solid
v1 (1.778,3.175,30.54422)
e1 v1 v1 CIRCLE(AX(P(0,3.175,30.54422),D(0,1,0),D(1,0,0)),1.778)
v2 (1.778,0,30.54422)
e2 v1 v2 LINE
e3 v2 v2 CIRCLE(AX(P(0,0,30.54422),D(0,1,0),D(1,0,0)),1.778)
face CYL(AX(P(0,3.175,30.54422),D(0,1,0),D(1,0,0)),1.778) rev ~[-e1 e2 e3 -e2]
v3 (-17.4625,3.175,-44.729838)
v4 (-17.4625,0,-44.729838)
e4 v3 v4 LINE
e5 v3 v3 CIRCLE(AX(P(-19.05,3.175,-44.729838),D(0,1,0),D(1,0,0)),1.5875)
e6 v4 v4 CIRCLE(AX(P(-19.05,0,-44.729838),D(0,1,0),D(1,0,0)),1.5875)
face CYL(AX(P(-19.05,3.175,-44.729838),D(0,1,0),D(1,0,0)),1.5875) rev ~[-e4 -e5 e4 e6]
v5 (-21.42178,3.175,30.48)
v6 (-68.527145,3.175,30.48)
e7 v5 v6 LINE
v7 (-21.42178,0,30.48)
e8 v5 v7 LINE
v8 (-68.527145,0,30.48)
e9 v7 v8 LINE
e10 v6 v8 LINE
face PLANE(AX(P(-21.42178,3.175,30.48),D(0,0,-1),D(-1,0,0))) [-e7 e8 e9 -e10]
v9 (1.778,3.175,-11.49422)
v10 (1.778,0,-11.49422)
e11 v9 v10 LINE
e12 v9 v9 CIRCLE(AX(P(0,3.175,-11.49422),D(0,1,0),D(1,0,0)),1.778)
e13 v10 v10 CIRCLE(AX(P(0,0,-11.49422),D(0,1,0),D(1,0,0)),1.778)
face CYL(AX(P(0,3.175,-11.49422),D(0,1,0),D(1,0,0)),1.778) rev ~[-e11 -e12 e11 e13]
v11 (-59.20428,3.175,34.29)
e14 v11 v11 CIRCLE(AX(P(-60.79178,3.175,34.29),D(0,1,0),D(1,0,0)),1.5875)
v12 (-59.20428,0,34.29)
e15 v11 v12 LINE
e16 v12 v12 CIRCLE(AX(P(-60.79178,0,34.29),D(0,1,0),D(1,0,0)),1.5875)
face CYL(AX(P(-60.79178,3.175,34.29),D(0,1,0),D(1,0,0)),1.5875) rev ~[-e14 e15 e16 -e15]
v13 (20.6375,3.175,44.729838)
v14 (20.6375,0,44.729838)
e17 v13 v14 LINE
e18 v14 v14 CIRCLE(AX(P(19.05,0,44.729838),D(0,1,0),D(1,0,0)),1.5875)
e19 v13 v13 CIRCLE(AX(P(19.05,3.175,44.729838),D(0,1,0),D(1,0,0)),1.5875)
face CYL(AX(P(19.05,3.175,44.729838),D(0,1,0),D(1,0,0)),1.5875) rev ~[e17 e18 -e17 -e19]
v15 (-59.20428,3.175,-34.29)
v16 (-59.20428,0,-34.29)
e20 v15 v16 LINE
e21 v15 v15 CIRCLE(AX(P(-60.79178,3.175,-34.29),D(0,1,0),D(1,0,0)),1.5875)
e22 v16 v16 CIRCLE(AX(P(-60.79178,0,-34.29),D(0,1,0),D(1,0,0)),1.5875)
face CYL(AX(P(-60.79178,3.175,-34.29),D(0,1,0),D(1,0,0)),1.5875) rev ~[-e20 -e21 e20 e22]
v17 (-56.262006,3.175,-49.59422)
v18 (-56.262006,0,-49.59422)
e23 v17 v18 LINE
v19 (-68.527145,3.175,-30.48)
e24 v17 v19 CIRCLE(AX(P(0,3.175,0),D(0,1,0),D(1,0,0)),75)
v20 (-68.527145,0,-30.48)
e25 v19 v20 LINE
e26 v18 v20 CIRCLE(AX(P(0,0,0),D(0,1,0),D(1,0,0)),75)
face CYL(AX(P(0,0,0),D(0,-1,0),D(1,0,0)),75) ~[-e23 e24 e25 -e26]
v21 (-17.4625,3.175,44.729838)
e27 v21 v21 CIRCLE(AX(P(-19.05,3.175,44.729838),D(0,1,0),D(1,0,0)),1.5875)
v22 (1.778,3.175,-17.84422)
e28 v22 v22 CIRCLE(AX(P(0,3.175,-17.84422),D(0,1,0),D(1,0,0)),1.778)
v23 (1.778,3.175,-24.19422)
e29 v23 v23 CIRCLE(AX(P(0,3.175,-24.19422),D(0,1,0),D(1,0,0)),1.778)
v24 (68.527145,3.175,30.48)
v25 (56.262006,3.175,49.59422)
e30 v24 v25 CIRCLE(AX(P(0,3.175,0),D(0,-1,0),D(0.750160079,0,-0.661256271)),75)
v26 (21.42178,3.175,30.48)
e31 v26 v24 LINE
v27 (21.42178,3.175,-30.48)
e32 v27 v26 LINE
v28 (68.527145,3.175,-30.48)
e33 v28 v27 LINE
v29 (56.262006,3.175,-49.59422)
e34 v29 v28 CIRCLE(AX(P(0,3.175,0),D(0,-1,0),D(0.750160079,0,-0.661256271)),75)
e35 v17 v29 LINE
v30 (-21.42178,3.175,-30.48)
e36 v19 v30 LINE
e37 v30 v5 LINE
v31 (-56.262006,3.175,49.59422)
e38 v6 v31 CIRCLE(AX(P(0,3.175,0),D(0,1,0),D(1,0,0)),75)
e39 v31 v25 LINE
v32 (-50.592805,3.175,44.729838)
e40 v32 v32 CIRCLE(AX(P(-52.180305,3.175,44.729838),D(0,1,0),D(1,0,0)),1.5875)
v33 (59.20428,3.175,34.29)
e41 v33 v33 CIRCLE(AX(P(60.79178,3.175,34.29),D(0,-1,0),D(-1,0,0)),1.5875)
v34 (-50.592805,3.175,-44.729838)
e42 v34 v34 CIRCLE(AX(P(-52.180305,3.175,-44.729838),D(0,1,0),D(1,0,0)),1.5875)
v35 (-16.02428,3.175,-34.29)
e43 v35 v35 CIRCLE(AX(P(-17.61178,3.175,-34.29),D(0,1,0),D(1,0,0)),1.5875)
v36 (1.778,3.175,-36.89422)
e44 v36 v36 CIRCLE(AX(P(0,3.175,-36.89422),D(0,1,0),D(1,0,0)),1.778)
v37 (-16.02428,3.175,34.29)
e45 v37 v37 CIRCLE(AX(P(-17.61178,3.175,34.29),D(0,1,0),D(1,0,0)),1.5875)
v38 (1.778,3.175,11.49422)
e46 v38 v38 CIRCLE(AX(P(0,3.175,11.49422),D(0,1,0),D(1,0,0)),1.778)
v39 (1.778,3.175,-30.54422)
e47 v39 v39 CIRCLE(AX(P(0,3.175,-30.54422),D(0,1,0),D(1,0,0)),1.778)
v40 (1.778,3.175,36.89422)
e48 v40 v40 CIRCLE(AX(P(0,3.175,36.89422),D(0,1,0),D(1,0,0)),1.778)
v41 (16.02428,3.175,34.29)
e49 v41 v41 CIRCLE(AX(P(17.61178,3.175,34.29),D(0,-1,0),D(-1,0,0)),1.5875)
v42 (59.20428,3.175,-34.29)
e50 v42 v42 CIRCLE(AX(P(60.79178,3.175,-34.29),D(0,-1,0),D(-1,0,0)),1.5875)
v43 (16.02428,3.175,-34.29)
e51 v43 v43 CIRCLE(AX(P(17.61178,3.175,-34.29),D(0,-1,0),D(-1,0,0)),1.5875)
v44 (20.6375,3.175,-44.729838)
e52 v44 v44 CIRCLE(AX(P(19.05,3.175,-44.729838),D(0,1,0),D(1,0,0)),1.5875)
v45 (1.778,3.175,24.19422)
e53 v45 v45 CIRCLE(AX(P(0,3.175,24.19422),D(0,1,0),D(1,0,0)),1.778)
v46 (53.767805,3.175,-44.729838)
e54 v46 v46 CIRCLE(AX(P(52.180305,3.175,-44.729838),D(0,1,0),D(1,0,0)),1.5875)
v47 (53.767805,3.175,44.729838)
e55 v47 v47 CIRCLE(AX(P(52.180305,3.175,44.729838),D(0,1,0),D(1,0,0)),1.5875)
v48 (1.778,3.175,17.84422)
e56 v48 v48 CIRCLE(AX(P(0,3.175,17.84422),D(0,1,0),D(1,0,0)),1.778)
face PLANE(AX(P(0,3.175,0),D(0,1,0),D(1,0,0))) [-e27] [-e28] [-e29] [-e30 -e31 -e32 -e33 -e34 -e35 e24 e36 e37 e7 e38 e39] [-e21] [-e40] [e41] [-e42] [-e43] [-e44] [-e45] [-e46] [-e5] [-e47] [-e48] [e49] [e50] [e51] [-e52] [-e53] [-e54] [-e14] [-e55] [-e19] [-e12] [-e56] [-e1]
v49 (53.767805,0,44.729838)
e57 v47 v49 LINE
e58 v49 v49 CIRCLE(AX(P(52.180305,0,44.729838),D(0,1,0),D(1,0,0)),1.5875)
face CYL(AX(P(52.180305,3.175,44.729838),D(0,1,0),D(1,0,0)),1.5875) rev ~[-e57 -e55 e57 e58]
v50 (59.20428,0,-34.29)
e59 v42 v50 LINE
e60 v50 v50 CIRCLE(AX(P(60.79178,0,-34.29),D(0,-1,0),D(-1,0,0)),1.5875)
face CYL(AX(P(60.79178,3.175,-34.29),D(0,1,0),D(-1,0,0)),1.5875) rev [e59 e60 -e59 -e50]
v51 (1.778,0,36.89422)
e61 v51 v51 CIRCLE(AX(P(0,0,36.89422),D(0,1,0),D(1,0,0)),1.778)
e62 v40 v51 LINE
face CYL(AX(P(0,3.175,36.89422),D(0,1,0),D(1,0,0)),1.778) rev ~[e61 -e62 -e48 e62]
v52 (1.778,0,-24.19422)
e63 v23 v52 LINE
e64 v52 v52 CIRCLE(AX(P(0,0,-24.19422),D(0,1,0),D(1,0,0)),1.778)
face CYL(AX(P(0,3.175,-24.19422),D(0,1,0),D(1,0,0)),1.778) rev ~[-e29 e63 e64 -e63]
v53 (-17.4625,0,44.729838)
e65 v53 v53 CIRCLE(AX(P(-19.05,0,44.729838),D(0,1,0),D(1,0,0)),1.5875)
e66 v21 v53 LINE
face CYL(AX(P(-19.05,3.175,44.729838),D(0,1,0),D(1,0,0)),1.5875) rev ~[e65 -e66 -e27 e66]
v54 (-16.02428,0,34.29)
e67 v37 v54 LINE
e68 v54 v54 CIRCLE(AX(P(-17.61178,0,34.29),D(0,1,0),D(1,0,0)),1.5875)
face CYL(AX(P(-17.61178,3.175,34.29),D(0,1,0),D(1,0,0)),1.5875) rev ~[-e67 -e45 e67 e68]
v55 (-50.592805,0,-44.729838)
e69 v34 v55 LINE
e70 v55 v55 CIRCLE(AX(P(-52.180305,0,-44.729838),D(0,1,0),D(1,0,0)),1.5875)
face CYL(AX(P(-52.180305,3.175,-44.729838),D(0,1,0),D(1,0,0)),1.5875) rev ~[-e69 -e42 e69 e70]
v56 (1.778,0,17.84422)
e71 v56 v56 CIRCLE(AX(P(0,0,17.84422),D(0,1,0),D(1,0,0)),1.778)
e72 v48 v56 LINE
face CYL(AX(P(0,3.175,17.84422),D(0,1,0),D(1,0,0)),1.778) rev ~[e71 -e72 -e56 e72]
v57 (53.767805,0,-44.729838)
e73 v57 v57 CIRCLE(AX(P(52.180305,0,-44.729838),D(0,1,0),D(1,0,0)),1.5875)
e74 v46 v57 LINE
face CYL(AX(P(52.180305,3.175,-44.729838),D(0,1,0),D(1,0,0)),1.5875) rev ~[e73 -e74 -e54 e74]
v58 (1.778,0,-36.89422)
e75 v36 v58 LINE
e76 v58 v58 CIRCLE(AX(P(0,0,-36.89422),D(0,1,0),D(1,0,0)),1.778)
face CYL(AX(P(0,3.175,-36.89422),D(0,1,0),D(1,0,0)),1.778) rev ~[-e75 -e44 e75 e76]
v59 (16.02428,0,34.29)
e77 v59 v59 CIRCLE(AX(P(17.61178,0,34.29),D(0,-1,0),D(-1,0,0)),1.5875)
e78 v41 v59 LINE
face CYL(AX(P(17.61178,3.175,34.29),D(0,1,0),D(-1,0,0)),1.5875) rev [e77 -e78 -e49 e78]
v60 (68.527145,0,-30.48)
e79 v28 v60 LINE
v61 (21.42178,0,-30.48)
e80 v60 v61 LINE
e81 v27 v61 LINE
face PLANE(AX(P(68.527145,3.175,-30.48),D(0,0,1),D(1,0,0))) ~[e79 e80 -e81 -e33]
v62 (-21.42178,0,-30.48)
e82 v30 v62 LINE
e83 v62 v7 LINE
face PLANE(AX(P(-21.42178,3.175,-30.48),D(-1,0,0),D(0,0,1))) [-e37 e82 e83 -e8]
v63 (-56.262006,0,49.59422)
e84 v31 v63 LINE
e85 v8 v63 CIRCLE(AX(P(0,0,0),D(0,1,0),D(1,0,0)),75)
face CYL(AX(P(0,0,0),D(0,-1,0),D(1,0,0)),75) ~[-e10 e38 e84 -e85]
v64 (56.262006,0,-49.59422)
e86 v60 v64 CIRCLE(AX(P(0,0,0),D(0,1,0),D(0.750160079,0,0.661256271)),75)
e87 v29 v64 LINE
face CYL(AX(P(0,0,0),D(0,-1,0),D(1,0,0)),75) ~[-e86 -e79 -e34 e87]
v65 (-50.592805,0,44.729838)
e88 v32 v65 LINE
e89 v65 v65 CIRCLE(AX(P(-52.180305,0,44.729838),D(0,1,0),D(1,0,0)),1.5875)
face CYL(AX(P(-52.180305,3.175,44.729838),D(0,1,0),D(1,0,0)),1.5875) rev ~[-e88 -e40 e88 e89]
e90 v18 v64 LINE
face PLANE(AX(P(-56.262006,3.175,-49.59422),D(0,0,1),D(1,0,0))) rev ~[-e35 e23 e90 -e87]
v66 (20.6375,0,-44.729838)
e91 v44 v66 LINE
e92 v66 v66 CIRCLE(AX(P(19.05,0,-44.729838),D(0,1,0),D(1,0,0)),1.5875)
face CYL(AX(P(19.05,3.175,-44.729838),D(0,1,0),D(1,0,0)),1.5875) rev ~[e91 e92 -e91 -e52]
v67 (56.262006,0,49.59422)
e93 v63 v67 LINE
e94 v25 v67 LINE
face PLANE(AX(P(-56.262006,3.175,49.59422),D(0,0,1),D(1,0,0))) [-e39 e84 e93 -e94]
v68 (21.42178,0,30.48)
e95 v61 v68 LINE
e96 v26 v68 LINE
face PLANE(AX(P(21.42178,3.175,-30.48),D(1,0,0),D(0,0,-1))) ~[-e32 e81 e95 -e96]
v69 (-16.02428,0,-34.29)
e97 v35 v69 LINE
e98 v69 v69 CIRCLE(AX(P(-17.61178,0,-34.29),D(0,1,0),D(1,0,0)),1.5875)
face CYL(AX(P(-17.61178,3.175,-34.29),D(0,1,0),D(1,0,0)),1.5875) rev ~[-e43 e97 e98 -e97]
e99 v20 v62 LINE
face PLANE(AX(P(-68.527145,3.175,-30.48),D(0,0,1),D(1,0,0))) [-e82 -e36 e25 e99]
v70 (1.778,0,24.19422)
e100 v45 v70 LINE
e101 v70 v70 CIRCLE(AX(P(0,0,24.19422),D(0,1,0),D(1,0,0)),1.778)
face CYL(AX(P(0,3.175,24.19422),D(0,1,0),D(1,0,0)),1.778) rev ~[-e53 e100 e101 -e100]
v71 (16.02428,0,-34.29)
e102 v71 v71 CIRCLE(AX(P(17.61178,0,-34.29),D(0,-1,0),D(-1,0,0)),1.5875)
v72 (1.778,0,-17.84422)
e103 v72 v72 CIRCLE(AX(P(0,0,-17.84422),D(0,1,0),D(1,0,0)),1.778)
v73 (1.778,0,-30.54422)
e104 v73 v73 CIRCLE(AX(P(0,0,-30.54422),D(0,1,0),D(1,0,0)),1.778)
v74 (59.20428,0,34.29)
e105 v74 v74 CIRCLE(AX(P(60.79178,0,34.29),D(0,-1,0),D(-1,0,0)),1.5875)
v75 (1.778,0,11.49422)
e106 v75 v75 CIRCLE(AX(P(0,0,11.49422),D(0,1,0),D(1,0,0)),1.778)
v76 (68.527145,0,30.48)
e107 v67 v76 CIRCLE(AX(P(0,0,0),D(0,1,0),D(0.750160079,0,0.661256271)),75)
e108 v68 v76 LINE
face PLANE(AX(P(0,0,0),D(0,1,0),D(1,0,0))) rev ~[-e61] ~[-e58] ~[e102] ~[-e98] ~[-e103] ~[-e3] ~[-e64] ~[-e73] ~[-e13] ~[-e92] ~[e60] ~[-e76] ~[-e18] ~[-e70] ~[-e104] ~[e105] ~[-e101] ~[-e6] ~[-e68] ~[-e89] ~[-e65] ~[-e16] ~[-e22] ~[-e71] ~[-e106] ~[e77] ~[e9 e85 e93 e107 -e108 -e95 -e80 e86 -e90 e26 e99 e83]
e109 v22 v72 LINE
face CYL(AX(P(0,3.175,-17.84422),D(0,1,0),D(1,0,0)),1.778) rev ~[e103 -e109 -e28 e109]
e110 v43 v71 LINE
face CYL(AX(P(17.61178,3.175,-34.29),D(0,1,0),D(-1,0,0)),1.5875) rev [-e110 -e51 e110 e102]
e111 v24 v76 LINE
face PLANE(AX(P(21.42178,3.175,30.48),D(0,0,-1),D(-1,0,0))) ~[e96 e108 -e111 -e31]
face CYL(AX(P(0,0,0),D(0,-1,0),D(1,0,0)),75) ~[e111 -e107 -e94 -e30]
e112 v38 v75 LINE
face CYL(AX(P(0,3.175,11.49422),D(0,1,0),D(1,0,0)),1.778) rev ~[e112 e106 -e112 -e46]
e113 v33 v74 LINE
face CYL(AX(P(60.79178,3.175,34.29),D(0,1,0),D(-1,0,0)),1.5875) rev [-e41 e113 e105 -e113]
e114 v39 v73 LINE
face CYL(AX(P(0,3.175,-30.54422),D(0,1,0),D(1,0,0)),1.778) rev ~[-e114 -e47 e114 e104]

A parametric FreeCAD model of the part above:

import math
import FreeCAD as App
import Part
import Sketcher
Q = App.Units.Quantity

doc = App.newDocument("Part")
body = doc.addObject("PartDesign::Body", "Body")

sketch1 = doc.addObject("Sketcher::SketchObject", "Sketch")
body.addObject(sketch1)
sketch1.AttachmentSupport = (doc.XZ_Plane, [""])
sketch1.MapMode = "FlatFace"
sketch1.addGeometry(Part.Circle(App.Vector(0, 0, 0), App.Vector(0, 0, 1), 75), False)
sketch1.addConstraint([
    Sketcher.Constraint("Coincident", 0, 3, -1, 1),
    Sketcher.Constraint("Diameter", 0, Q("150 mm")),
])
pad1 = doc.addObject("PartDesign::Pad", "Pad")
body.addObject(pad1)
pad1.Profile = sketch1
pad1.Length = Q("0.125 in")
pad1.Reversed = True

sketch2 = doc.addObject("Sketcher::SketchObject", "Sketch001")
body.addObject(sketch2)
sketch2.AttachmentSupport = (doc.XZ_Plane, [""])
sketch2.MapMode = "FlatFace"
sketch2.AttachmentOffset = App.Placement(App.Vector(0, 0, -0.125 * 25.4), App.Rotation())
sketch2.addGeometry([
    Part.LineSegment(App.Vector(56, 50, 0), App.Vector(-56, 50, 0)),
    Part.ArcOfCircle(Part.Circle(App.Vector(0, 0, 0), App.Vector(0, 0, 1), 75), math.radians(41), math.radians(139)),
    Part.LineSegment(App.Vector(-56, -50, 0), App.Vector(56, -50, 0)),
    Part.ArcOfCircle(Part.Circle(App.Vector(0, 0, 0), App.Vector(0, 0, 1), 75), math.radians(-139), math.radians(-41)),
], False)
sketch2.addConstraint([
    Sketcher.Constraint("Coincident", 0, 1, 1, 1),
    Sketcher.Constraint("Coincident", 1, 2, 0, 2),
    Sketcher.Constraint("Coincident", 2, 1, 3, 1),
    Sketcher.Constraint("Coincident", 3, 2, 2, 2),
    Sketcher.Constraint("Horizontal", 0),
    Sketcher.Constraint("Horizontal", 2),
    Sketcher.Constraint("Coincident", 1, 3, -1, 1),
    Sketcher.Constraint("Coincident", 3, 3, -1, 1),
    Sketcher.Constraint("Equal", 1, 3),
    Sketcher.Constraint("Vertical", 1, 2, 2, 1),
    Sketcher.Constraint("Radius", 1, Q("75 mm")),
    Sketcher.Constraint("DistanceX", 0, 2, 0, 1, Q("112.524012 mm")),
])
pocket1 = doc.addObject("PartDesign::Pocket", "Pocket")
body.addObject(pocket1)
pocket1.Profile = sketch2
pocket1.Length = Q("0.125 in")
pocket1.Reversed = True

sketch3 = doc.addObject("Sketcher::SketchObject", "Sketch002")
body.addObject(sketch3)
sketch3.AttachmentSupport = (doc.XZ_Plane, [""])
sketch3.MapMode = "FlatFace"
sketch3.AttachmentOffset = App.Placement(App.Vector(0, 0, -0.125 * 25.4), App.Rotation())
sketch3.addGeometry([
    Part.Circle(App.Vector(0, -36.9, 0), App.Vector(0, 0, 1), 1.8),
    Part.Circle(App.Vector(0, -11.5, 0), App.Vector(0, 0, 1), 1.8),
    Part.Circle(App.Vector(0, -17.8, 0), App.Vector(0, 0, 1), 1.8),
    Part.Circle(App.Vector(0, -24.2, 0), App.Vector(0, 0, 1), 1.8),
    Part.Circle(App.Vector(0, -30.5, 0), App.Vector(0, 0, 1), 1.8),
    Part.Circle(App.Vector(0, 11.5, 0), App.Vector(0, 0, 1), 1.8),
    Part.Circle(App.Vector(0, 17.8, 0), App.Vector(0, 0, 1), 1.8),
    Part.Circle(App.Vector(0, 24.2, 0), App.Vector(0, 0, 1), 1.8),
    Part.Circle(App.Vector(0, 30.5, 0), App.Vector(0, 0, 1), 1.8),
    Part.Circle(App.Vector(0, 36.9, 0), App.Vector(0, 0, 1), 1.8),
    Part.Circle(App.Vector(-52.2, 44.7, 0), App.Vector(0, 0, 1), 1.6),
    Part.Circle(App.Vector(52.2, 44.7, 0), App.Vector(0, 0, 1), 1.6),
    Part.Circle(App.Vector(52.2, -44.7, 0), App.Vector(0, 0, 1), 1.6),
    Part.Circle(App.Vector(-52.2, -44.7, 0), App.Vector(0, 0, 1), 1.6),
    Part.Circle(App.Vector(-19.1, -44.7, 0), App.Vector(0, 0, 1), 1.6),
    Part.Circle(App.Vector(-19.1, 44.7, 0), App.Vector(0, 0, 1), 1.6),
    Part.Circle(App.Vector(19.1, 44.7, 0), App.Vector(0, 0, 1), 1.6),
    Part.Circle(App.Vector(19.1, -44.7, 0), App.Vector(0, 0, 1), 1.6),
], False)
sketch3.addConstraint([
    Sketcher.Constraint("Equal", 0, 1),
    Sketcher.Constraint("Equal", 1, 2),
    Sketcher.Constraint("Equal", 2, 3),
    Sketcher.Constraint("Equal", 3, 4),
    Sketcher.Constraint("Equal", 4, 5),
    Sketcher.Constraint("Equal", 5, 6),
    Sketcher.Constraint("Equal", 6, 7),
    Sketcher.Constraint("Equal", 7, 8),
    Sketcher.Constraint("Equal", 8, 9),
    Sketcher.Constraint("Equal", 10, 11),
    Sketcher.Constraint("Equal", 11, 12),
    Sketcher.Constraint("Equal", 12, 13),
    Sketcher.Constraint("Equal", 13, 14),
    Sketcher.Constraint("Equal", 14, 15),
    Sketcher.Constraint("Equal", 15, 16),
    Sketcher.Constraint("Equal", 16, 17),
    Sketcher.Constraint("Symmetric", 1, 3, 5, 3, -1, 1),
    Sketcher.Constraint("Symmetric", 2, 3, 6, 3, -1, 1),
    Sketcher.Constraint("Symmetric", 3, 3, 7, 3, -1, 1),
    Sketcher.Constraint("Symmetric", 4, 3, 8, 3, -1, 1),
    Sketcher.Constraint("Symmetric", 0, 3, 9, 3, -1, 1),
    Sketcher.Constraint("Symmetric", 10, 3, 12, 3, -1, 1),
    Sketcher.Constraint("Symmetric", 11, 3, 13, 3, -1, 1),
    Sketcher.Constraint("Symmetric", 14, 3, 16, 3, -1, 1),
    Sketcher.Constraint("Symmetric", 15, 3, 17, 3, -1, 1),
    Sketcher.Constraint("Symmetric", 10, 3, 11, 3, -2),
    Sketcher.Constraint("Symmetric", 15, 3, 16, 3, -2),
    Sketcher.Constraint("PointOnObject", 0, 3, -2),
    Sketcher.Constraint("PointOnObject", 1, 3, -2),
    Sketcher.Constraint("PointOnObject", 2, 3, -2),
    Sketcher.Constraint("PointOnObject", 3, 3, -2),
    Sketcher.Constraint("PointOnObject", 4, 3, -2),
    Sketcher.Constraint("Horizontal", 13, 3, 14, 3),
    Sketcher.Constraint("Diameter", 0, Q("0.14 in")),
    Sketcher.Constraint("Diameter", 10, Q("0.125 in")),
    Sketcher.Constraint("DistanceY", 0, 3, 1, 3, Q("1 in")),
    Sketcher.Constraint("DistanceY", 0, 3, 3, 3, Q("0.5 in")),
    Sketcher.Constraint("DistanceY", 4, 3, 2, 3, Q("0.5 in")),
    Sketcher.Constraint("DistanceX", 14, 3, -1, 1, Q("0.75 in")),
    Sketcher.Constraint("DistanceY", 2, 3, 1, 3, Q("0.25 in")),
    Sketcher.Constraint("DistanceY", 0, 3, -1, 1, Q("36.89422 mm")),
    Sketcher.Constraint("DistanceY", -1, 1, 10, 3, Q("44.729838 mm")),
    Sketcher.Constraint("DistanceX", 10, 3, -1, 1, Q("52.180305 mm")),
])
pocket2 = doc.addObject("PartDesign::Pocket", "Pocket001")
body.addObject(pocket2)
pocket2.Profile = sketch3
pocket2.Length = Q("0.125 in")
pocket2.Reversed = True

sketch4 = doc.addObject("Sketcher::SketchObject", "Sketch003")
body.addObject(sketch4)
sketch4.AttachmentSupport = (doc.XZ_Plane, [""])
sketch4.MapMode = "FlatFace"
sketch4.AttachmentOffset = App.Placement(App.Vector(0, 0, -0.125 * 25.4), App.Rotation())
sketch4.addGeometry([
    Part.Circle(App.Vector(-60.8, -34.3, 0), App.Vector(0, 0, 1), 1.6),
    Part.Circle(App.Vector(-17.6, -34.3, 0), App.Vector(0, 0, 1), 1.6),
    Part.Circle(App.Vector(-17.6, 34.3, 0), App.Vector(0, 0, 1), 1.6),
    Part.Circle(App.Vector(-60.8, 34.3, 0), App.Vector(0, 0, 1), 1.6),
], False)
sketch4.addConstraint([
    Sketcher.Constraint("Equal", 0, 1),
    Sketcher.Constraint("Equal", 1, 2),
    Sketcher.Constraint("Equal", 2, 3),
    Sketcher.Constraint("Symmetric", 1, 3, 2, 3, -1),
    Sketcher.Constraint("Symmetric", 0, 3, 3, 3, -1),
    Sketcher.Constraint("Horizontal", 0, 3, 1, 3),
    Sketcher.Constraint("Diameter", 0, Q("0.125 in")),
    Sketcher.Constraint("DistanceX", 0, 3, 1, 3, Q("1.7 in")),
    Sketcher.Constraint("DistanceY", 1, 3, 2, 3, Q("2.7 in")),
    Sketcher.Constraint("DistanceX", 0, 3, -1, 1, Q("60.79178 mm")),
])
pocket3 = doc.addObject("PartDesign::Pocket", "Pocket002")
body.addObject(pocket3)
pocket3.Profile = sketch4
pocket3.Length = Q("0.125 in")
pocket3.Reversed = True

sketch5 = doc.addObject("Sketcher::SketchObject", "Sketch004")
body.addObject(sketch5)
sketch5.AttachmentSupport = (doc.XZ_Plane, [""])
sketch5.MapMode = "FlatFace"
sketch5.AttachmentOffset = App.Placement(App.Vector(0, 0, -0.125 * 25.4), App.Rotation())
sketch5.addGeometry([
    Part.LineSegment(App.Vector(-21, -30, 0), App.Vector(-69, -30, 0)),
    Part.ArcOfCircle(Part.Circle(App.Vector(0, 0, 0), App.Vector(0, 0, 1), 75), math.radians(156), math.radians(204)),
    Part.LineSegment(App.Vector(-69, 30, 0), App.Vector(-21, 30, 0)),
    Part.LineSegment(App.Vector(-21, 30, 0), App.Vector(-21, -30, 0)),
], False)
sketch5.addConstraint([
    Sketcher.Constraint("Coincident", 0, 2, 1, 2),
    Sketcher.Constraint("Coincident", 1, 1, 2, 1),
    Sketcher.Constraint("Coincident", 2, 2, 3, 1),
    Sketcher.Constraint("Coincident", 3, 2, 0, 1),
    Sketcher.Constraint("Horizontal", 0),
    Sketcher.Constraint("Horizontal", 2),
    Sketcher.Constraint("Vertical", 3),
    Sketcher.Constraint("Coincident", 1, 3, -1, 1),
    Sketcher.Constraint("Vertical", 0, 2, 1, 1),
    Sketcher.Constraint("DistanceY", 3, 2, 3, 1, Q("2.4 in")),
    Sketcher.Constraint("Radius", 1, Q("75 mm")),
    Sketcher.Constraint("DistanceX", 0, 2, 0, 1, Q("47.105365 mm")),
])
pocket4 = doc.addObject("PartDesign::Pocket", "Pocket003")
body.addObject(pocket4)
pocket4.Profile = sketch5
pocket4.Length = Q("0.125 in")
pocket4.Reversed = True
doc.recompute()

mirrored = doc.addObject("PartDesign::Mirrored", "Mirrored")
body.addObject(mirrored)
mirrored.Originals = [pocket3, pocket4]
mirrored.MirrorPlane = (doc.YZ_Plane, [""])
body.Tip = mirrored

doc.recompute()
